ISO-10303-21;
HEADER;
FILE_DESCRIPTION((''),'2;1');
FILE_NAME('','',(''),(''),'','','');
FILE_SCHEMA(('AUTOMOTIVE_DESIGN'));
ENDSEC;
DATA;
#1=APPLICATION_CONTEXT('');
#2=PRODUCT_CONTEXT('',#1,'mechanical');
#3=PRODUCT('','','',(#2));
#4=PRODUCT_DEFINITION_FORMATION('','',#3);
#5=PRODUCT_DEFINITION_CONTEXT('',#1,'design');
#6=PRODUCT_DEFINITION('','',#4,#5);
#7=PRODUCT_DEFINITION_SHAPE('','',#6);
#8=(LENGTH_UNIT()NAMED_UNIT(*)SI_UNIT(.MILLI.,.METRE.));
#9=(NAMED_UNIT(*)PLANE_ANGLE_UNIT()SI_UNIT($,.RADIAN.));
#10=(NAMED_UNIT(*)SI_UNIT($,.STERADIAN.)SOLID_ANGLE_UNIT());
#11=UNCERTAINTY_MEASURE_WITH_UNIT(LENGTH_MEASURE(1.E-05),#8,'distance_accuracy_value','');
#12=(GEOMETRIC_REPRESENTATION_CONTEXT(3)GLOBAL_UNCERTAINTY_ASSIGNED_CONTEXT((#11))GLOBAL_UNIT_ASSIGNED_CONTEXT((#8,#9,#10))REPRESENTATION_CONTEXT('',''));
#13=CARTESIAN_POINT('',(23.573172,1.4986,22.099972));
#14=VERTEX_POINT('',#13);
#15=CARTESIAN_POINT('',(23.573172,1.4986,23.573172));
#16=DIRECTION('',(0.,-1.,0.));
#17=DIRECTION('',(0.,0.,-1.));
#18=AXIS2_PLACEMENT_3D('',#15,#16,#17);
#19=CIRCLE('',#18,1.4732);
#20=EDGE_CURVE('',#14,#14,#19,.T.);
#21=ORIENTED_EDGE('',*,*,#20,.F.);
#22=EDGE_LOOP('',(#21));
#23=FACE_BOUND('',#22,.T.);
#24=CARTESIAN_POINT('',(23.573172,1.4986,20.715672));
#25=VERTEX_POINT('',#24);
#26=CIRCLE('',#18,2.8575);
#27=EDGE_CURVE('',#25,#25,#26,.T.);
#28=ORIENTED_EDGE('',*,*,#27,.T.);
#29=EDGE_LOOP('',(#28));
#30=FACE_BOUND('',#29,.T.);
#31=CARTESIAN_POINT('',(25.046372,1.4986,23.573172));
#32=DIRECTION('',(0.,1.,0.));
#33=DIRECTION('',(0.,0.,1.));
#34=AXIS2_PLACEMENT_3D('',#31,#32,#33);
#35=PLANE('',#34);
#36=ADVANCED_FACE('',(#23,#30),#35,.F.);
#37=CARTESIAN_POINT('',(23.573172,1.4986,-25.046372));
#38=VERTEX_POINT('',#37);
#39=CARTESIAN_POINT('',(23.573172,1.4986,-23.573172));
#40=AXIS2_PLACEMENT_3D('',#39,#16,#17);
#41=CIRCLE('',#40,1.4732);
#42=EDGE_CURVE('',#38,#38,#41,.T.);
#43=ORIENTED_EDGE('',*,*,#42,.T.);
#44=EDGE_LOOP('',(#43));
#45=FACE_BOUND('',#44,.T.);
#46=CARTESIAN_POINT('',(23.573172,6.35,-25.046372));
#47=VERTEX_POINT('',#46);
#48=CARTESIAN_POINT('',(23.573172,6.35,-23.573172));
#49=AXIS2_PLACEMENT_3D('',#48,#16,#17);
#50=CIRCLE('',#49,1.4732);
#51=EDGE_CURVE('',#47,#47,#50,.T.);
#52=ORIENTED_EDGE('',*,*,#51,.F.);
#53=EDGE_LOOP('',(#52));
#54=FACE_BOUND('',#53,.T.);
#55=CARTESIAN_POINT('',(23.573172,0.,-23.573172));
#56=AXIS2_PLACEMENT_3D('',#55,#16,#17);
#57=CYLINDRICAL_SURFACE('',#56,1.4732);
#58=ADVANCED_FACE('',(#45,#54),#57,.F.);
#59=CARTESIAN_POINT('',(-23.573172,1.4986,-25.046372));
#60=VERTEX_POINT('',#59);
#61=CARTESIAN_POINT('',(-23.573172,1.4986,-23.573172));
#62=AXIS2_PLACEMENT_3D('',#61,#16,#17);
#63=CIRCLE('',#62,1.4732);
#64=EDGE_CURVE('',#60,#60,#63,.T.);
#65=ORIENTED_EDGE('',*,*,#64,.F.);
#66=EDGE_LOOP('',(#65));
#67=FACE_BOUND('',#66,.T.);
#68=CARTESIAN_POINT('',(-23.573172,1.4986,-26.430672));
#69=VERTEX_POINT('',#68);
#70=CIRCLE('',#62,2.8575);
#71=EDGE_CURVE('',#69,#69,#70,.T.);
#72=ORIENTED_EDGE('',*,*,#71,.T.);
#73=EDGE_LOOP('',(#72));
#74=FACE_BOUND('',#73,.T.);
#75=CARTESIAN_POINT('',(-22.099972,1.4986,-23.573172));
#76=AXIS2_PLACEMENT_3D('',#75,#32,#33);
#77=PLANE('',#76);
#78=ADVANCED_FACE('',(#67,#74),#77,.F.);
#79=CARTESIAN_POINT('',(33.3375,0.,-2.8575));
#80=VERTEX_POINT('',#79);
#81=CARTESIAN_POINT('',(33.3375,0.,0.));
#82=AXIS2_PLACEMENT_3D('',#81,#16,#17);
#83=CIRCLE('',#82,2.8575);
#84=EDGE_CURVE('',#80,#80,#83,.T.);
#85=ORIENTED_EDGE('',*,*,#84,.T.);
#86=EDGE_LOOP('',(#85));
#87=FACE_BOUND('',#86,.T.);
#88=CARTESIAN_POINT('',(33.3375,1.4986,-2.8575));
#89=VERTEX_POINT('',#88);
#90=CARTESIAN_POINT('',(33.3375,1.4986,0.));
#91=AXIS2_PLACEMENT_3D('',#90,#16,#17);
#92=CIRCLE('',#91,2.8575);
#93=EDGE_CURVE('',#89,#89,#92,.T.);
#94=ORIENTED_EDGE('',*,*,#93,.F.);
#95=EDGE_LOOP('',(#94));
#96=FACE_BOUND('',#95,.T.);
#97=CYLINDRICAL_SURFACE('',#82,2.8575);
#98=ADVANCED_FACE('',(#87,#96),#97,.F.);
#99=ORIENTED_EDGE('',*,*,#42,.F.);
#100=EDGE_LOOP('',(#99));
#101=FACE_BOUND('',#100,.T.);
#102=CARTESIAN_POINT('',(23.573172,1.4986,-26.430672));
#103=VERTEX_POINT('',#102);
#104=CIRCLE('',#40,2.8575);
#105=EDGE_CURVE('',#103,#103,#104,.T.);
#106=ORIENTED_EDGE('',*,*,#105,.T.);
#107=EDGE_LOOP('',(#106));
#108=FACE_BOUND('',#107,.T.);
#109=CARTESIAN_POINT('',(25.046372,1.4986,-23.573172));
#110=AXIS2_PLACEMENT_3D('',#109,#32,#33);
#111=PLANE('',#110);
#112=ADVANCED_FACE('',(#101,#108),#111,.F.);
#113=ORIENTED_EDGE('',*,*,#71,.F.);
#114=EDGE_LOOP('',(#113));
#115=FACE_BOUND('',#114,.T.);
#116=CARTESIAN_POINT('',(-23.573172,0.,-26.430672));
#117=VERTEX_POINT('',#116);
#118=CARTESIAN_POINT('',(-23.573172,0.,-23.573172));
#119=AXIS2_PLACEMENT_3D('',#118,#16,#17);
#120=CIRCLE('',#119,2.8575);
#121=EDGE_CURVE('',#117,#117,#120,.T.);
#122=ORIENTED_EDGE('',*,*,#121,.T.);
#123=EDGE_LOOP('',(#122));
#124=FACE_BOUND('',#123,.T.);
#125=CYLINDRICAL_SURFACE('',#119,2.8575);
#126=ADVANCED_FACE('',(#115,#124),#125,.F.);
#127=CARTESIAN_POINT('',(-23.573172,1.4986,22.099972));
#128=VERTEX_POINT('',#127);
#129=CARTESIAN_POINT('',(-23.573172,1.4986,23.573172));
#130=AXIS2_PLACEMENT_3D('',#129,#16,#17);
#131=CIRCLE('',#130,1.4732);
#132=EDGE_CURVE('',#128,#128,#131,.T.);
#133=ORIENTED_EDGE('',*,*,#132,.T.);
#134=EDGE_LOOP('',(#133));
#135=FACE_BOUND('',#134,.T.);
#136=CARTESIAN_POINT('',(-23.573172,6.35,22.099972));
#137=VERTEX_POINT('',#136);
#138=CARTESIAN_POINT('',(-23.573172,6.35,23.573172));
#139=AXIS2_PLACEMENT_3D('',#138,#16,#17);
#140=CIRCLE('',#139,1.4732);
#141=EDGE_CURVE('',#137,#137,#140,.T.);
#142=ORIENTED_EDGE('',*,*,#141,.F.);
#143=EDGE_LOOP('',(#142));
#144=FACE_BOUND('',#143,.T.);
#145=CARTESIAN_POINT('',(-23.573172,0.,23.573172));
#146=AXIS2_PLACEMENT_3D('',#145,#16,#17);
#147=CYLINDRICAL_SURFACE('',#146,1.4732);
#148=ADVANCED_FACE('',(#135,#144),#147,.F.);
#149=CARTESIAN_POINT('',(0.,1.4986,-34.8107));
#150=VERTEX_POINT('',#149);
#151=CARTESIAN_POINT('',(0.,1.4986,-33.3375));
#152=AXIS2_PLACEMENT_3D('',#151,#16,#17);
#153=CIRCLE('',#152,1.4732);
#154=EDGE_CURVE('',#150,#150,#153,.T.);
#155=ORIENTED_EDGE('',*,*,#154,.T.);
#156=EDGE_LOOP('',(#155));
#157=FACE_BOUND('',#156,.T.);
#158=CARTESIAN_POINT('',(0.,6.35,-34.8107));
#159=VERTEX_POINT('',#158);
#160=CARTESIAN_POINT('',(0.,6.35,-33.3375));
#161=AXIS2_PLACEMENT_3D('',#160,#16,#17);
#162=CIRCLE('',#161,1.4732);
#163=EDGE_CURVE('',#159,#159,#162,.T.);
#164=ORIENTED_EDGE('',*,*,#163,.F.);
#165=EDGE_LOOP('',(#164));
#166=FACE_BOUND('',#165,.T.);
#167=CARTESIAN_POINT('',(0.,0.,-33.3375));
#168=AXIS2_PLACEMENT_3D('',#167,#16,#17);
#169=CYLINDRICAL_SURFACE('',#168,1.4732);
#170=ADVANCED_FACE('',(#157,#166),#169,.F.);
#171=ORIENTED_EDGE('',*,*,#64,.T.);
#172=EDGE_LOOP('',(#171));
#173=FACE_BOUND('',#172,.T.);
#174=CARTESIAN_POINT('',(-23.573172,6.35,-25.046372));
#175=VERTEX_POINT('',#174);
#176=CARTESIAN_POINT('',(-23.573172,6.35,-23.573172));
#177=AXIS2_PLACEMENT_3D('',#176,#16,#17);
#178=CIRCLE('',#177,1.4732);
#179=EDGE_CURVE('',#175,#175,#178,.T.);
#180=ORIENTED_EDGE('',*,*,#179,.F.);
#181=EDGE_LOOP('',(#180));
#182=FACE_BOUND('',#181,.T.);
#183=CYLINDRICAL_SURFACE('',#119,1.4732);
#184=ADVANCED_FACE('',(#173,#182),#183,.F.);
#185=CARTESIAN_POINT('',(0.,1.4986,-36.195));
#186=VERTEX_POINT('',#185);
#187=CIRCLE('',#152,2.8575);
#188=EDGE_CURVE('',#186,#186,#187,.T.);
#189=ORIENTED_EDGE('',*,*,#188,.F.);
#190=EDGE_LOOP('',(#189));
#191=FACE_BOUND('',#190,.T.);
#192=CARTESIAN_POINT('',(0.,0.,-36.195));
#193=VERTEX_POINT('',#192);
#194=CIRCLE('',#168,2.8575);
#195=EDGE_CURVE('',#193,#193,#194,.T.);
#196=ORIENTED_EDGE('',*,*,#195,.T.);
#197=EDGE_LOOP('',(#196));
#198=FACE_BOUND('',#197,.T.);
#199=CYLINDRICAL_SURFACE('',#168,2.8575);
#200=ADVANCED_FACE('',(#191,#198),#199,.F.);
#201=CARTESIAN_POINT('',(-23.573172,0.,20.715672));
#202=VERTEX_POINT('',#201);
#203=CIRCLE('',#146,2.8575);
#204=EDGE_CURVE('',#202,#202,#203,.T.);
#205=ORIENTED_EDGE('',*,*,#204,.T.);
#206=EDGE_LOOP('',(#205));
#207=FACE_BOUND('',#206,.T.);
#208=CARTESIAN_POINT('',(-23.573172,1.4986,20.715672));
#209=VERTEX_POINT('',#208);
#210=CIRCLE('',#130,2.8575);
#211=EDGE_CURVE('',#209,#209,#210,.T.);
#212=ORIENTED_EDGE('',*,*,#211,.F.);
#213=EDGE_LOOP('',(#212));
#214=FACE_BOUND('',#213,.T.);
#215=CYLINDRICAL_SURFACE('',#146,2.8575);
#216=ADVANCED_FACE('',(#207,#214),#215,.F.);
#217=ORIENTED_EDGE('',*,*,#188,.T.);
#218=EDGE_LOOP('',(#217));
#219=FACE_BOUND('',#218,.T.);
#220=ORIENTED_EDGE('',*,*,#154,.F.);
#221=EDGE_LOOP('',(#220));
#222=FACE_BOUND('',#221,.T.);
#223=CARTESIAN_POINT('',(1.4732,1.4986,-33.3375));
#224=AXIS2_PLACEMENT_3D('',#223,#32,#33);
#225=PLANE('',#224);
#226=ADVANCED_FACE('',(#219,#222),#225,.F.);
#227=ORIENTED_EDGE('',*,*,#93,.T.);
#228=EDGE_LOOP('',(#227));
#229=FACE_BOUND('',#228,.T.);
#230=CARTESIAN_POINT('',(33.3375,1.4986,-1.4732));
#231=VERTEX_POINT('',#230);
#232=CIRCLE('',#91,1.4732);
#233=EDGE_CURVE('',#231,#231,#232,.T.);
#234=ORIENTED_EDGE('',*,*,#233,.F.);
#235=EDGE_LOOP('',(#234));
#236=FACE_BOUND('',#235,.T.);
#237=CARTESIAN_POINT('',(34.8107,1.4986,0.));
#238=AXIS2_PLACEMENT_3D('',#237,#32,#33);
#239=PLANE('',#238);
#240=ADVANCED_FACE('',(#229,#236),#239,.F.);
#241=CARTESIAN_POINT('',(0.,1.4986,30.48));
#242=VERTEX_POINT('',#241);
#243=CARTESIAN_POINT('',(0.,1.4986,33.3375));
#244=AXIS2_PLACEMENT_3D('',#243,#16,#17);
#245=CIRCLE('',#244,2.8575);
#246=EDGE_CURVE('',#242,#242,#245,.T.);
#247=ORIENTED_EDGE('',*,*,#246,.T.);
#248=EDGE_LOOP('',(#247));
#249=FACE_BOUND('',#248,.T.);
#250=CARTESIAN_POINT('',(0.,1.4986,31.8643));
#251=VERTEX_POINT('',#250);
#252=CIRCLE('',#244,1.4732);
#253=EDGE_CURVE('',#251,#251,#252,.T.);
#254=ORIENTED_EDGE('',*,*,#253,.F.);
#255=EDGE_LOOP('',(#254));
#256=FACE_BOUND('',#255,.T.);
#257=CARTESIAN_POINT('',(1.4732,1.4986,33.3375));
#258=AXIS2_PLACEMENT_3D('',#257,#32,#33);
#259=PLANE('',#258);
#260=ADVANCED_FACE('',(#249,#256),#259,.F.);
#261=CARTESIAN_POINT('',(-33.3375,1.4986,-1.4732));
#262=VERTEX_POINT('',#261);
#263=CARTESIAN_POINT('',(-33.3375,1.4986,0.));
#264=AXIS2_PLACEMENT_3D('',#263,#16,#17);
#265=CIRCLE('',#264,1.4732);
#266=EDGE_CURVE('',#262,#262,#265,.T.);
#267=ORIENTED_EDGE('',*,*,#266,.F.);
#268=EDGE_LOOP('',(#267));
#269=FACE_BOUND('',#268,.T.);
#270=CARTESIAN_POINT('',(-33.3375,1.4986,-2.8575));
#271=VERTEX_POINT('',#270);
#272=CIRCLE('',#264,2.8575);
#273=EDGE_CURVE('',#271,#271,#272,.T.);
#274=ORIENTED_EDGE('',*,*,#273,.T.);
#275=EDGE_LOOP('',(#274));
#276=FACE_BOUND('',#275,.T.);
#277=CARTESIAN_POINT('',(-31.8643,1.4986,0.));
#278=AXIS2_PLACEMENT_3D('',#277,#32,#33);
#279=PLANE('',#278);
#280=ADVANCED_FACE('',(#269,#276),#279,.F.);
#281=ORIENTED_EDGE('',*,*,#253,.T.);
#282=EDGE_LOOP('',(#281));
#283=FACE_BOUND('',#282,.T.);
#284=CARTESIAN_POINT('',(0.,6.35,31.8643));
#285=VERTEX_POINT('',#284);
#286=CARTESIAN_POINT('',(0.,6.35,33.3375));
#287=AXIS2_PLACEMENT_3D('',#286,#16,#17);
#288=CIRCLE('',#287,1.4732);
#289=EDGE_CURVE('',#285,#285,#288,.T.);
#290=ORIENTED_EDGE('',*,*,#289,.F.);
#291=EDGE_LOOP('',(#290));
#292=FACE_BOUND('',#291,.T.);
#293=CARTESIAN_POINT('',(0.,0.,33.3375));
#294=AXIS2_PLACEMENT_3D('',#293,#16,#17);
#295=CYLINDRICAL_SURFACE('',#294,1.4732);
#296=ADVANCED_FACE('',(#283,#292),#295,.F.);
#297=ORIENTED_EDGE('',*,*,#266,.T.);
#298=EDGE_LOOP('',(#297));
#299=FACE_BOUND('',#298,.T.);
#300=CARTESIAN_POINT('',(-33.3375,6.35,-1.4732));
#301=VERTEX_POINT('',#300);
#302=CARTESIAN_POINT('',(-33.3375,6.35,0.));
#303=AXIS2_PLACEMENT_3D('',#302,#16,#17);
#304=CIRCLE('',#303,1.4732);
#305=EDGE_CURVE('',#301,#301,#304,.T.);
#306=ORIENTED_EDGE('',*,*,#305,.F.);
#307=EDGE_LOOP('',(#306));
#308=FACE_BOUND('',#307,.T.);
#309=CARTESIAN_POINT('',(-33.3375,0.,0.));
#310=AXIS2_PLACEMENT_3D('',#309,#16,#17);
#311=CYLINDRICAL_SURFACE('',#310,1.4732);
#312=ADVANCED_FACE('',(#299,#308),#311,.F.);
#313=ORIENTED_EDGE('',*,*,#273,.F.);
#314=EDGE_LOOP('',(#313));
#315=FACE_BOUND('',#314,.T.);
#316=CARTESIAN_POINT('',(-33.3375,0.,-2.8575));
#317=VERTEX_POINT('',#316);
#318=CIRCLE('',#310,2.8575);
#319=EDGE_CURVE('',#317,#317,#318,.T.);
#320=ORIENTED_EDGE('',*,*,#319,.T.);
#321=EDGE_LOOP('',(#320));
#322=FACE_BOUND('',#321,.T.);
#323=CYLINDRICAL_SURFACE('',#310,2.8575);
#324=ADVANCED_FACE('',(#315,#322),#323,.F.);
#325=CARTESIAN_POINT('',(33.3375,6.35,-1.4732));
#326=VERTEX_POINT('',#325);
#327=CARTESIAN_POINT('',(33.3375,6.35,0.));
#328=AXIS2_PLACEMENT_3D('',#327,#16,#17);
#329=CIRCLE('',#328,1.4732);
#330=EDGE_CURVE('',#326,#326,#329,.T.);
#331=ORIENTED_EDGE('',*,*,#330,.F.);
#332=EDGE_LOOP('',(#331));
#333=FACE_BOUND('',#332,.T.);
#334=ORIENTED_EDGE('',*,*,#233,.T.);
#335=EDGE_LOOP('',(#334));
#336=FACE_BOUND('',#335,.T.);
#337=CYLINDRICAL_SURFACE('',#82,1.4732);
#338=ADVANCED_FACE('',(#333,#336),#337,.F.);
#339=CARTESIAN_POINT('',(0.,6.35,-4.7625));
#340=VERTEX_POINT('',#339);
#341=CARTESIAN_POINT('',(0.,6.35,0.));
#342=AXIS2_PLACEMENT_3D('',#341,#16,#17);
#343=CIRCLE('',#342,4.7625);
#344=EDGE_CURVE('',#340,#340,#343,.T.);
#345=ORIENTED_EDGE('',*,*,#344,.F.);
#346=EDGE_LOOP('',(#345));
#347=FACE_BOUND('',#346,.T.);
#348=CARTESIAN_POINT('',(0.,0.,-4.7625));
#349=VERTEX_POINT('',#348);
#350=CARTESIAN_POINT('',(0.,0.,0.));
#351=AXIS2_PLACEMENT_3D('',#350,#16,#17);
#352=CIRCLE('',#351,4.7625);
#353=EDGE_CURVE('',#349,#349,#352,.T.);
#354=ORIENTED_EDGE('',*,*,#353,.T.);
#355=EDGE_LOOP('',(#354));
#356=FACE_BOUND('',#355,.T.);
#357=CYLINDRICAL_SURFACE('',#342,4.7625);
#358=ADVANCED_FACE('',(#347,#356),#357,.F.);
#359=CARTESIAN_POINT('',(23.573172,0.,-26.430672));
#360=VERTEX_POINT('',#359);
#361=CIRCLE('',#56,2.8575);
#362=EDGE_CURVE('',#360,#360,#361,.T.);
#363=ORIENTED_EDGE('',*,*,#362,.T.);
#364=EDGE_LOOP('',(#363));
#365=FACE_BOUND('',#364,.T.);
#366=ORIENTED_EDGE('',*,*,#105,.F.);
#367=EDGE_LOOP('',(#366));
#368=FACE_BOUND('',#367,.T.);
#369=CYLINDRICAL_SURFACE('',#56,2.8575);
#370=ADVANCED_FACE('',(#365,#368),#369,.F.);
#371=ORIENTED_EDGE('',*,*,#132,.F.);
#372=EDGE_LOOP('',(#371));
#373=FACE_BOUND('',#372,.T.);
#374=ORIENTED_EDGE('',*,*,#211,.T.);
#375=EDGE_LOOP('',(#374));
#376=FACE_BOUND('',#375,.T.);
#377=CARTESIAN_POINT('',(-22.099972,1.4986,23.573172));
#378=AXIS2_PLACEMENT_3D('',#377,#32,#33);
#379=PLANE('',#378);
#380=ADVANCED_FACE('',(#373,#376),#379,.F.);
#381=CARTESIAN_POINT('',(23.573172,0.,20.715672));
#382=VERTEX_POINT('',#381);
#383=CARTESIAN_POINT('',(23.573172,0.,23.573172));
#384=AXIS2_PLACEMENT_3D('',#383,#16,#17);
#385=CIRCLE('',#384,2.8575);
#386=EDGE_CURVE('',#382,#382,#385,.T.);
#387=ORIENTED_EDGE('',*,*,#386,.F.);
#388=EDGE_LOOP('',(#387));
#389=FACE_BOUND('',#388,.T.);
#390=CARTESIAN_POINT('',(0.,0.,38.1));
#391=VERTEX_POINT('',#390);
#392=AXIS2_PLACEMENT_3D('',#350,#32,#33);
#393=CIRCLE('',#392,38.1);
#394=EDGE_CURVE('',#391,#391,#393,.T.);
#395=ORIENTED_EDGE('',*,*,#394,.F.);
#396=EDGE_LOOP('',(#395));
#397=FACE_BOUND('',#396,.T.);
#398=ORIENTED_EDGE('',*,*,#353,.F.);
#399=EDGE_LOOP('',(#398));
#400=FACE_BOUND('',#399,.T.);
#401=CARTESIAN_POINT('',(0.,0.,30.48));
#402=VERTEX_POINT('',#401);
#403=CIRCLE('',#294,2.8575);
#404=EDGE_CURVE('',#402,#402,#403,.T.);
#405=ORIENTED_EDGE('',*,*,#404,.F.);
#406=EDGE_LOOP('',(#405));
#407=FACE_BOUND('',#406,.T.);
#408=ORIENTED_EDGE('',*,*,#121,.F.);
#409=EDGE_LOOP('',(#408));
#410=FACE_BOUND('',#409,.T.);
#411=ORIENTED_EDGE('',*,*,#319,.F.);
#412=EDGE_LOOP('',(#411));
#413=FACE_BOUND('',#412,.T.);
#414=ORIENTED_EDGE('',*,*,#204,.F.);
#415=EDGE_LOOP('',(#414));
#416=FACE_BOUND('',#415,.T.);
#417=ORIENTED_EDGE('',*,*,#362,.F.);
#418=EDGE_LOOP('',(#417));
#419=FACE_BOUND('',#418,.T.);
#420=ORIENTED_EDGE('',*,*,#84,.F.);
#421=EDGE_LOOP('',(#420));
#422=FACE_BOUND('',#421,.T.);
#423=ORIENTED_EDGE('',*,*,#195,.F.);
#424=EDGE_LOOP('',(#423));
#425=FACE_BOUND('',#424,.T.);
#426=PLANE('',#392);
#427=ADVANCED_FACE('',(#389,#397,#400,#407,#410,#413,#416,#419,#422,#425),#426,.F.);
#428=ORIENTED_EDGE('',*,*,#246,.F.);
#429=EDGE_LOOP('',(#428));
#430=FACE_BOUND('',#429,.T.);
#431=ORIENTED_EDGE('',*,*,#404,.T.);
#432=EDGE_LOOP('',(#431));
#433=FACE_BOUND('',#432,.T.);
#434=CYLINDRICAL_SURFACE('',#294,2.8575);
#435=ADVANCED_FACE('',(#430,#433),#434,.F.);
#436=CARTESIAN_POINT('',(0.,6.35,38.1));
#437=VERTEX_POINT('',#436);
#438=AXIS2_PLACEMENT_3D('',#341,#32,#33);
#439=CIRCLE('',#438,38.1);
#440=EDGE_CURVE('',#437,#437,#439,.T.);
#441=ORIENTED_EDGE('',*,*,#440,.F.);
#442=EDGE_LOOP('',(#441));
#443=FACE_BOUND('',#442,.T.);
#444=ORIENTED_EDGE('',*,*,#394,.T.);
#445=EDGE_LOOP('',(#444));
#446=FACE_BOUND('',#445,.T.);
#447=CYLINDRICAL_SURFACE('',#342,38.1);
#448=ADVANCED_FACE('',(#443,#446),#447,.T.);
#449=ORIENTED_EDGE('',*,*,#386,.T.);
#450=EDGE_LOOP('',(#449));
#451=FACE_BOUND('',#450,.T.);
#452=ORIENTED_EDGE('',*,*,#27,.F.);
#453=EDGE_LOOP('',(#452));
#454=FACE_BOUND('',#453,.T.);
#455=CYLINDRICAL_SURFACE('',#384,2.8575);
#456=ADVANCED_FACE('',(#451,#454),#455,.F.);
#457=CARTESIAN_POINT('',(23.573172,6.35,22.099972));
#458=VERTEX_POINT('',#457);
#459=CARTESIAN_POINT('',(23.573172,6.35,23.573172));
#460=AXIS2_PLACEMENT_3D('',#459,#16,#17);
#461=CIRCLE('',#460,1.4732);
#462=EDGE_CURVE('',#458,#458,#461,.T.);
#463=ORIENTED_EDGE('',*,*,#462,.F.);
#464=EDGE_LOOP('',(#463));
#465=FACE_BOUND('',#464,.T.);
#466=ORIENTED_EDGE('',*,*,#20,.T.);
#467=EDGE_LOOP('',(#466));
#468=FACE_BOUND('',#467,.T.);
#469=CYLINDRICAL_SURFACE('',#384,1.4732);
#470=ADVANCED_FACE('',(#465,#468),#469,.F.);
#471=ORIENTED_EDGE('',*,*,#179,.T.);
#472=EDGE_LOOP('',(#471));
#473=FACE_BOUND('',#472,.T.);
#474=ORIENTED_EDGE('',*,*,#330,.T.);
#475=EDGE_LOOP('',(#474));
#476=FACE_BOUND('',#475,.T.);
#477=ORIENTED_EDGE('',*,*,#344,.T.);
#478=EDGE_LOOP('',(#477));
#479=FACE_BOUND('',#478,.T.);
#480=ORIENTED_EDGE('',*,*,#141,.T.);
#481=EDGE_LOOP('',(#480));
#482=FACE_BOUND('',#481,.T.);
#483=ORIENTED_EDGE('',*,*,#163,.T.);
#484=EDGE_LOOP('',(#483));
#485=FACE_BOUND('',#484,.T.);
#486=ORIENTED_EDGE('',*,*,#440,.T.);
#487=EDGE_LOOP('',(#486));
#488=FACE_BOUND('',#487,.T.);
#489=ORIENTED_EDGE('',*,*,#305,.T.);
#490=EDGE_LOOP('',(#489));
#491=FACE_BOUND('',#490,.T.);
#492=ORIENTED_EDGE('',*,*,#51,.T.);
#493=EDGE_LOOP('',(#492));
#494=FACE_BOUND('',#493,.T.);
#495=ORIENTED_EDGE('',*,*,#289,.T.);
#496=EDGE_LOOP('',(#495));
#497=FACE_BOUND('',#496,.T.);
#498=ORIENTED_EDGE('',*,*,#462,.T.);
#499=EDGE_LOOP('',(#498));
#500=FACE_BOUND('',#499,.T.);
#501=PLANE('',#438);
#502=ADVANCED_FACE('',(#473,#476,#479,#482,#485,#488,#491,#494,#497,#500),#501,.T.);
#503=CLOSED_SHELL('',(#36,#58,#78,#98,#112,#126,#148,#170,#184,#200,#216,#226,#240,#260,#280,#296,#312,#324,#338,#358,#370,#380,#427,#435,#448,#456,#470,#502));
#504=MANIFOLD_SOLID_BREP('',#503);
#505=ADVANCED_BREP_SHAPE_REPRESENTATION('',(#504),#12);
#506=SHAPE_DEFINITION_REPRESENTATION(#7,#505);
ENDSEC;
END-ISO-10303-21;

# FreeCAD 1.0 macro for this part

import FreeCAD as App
import Part
import Sketcher

V = App.Vector
Q = App.Units.Quantity

doc = App.newDocument("Part")
params = doc.addObject("Spreadsheet::Sheet", "Params")
for row, (alias, value) in enumerate([
    ("sketch1_diameter", "3 in"),
    ("pad1_length", "0.25 in"),
    ("sketch2_diameter", "0.116 in"),
    ("hole_diameter", "0.116 in"),
    ("hole_cbore_diameter", "0.225 in"),
    ("hole_cbore_depth", "0.059 in"),
    ("sketch3_diameter", "0.375 in"),
], start=1):
    params.set(f"A{row}", alias)
    params.set(f"B{row}", "=" + value)
    params.setAlias(f"B{row}", alias)

body = doc.addObject("PartDesign::Body", "Body")

# Sketch on XZ plane
sketch1 = body.newObject("Sketcher::SketchObject", "Sketch")
sketch1.AttachmentSupport = (doc.getObject("XZ_Plane"), [""])
sketch1.MapMode = "FlatFace"
sketch1.addGeometry(Part.Circle(V(0, 0, 0), V(0, 0, 1), 38), False)
sketch1.addConstraint([
    Sketcher.Constraint("Coincident", 0, 3, -1, 1),
    Sketcher.Constraint("Diameter", 0, Q("3 in")),
])
sketch1.setExpression("Constraints[1]", "Params.sketch1_diameter")
pad1 = body.newObject("PartDesign::Pad", "Pad")
pad1.Profile = sketch1
pad1.setExpression("Length", "Params.pad1_length")
pad1.Reversed = True

# Sketch on XZ plane
sketch2 = body.newObject("Sketcher::SketchObject", "Sketch001")
sketch2.AttachmentSupport = (doc.getObject("XZ_Plane"), [""])
sketch2.MapMode = "FlatFace"
sketch2.addGeometry(Part.Circle(V(0, 33.3, 0), V(0, 0, 1), 1.5), False)
sketch2.addConstraint([
    Sketcher.Constraint("PointOnObject", 0, 3, -2),
    Sketcher.Constraint("Diameter", 0, Q("0.116 in")),
    Sketcher.Constraint("DistanceY", -1, 1, 0, 3, Q("1.3125 in")),
])
sketch2.setExpression("Constraints[1]", "Params.sketch2_diameter")
doc.recompute()
hole = body.newObject("PartDesign::Hole", "Hole")
hole.Profile = sketch2
hole.ThreadType = "None"
hole.setExpression("Diameter", "Params.hole_diameter")
hole.DepthType = "ThroughAll"
hole.HoleCutType = "Counterbore"
hole.setExpression("HoleCutDiameter", "Params.hole_cbore_diameter")
hole.setExpression("HoleCutDepth", "Params.hole_cbore_depth")
doc.recompute()

polarpattern = body.newObject("PartDesign::PolarPattern", "PolarPattern")
polarpattern.Originals = [hole]
polarpattern.Axis = (doc.getObject("Y_Axis"), [""])
polarpattern.Angle = 360
polarpattern.Occurrences = 8
body.Tip = polarpattern

# Sketch on XZ plane
sketch3 = body.newObject("Sketcher::SketchObject", "Sketch002")
sketch3.AttachmentSupport = (doc.getObject("XZ_Plane"), [""])
sketch3.MapMode = "FlatFace"
sketch3.addGeometry(Part.Circle(V(0, 0, 0), V(0, 0, 1), 4.8), False)
sketch3.addConstraint([
    Sketcher.Constraint("Coincident", 0, 3, -1, 1),
    Sketcher.Constraint("Diameter", 0, Q("0.375 in")),
])
sketch3.setExpression("Constraints[1]", "Params.sketch3_diameter")
pocket1 = body.newObject("PartDesign::Pocket", "Pocket")
pocket1.Profile = sketch3
pocket1.Type = "ThroughAll"

doc.recompute()
